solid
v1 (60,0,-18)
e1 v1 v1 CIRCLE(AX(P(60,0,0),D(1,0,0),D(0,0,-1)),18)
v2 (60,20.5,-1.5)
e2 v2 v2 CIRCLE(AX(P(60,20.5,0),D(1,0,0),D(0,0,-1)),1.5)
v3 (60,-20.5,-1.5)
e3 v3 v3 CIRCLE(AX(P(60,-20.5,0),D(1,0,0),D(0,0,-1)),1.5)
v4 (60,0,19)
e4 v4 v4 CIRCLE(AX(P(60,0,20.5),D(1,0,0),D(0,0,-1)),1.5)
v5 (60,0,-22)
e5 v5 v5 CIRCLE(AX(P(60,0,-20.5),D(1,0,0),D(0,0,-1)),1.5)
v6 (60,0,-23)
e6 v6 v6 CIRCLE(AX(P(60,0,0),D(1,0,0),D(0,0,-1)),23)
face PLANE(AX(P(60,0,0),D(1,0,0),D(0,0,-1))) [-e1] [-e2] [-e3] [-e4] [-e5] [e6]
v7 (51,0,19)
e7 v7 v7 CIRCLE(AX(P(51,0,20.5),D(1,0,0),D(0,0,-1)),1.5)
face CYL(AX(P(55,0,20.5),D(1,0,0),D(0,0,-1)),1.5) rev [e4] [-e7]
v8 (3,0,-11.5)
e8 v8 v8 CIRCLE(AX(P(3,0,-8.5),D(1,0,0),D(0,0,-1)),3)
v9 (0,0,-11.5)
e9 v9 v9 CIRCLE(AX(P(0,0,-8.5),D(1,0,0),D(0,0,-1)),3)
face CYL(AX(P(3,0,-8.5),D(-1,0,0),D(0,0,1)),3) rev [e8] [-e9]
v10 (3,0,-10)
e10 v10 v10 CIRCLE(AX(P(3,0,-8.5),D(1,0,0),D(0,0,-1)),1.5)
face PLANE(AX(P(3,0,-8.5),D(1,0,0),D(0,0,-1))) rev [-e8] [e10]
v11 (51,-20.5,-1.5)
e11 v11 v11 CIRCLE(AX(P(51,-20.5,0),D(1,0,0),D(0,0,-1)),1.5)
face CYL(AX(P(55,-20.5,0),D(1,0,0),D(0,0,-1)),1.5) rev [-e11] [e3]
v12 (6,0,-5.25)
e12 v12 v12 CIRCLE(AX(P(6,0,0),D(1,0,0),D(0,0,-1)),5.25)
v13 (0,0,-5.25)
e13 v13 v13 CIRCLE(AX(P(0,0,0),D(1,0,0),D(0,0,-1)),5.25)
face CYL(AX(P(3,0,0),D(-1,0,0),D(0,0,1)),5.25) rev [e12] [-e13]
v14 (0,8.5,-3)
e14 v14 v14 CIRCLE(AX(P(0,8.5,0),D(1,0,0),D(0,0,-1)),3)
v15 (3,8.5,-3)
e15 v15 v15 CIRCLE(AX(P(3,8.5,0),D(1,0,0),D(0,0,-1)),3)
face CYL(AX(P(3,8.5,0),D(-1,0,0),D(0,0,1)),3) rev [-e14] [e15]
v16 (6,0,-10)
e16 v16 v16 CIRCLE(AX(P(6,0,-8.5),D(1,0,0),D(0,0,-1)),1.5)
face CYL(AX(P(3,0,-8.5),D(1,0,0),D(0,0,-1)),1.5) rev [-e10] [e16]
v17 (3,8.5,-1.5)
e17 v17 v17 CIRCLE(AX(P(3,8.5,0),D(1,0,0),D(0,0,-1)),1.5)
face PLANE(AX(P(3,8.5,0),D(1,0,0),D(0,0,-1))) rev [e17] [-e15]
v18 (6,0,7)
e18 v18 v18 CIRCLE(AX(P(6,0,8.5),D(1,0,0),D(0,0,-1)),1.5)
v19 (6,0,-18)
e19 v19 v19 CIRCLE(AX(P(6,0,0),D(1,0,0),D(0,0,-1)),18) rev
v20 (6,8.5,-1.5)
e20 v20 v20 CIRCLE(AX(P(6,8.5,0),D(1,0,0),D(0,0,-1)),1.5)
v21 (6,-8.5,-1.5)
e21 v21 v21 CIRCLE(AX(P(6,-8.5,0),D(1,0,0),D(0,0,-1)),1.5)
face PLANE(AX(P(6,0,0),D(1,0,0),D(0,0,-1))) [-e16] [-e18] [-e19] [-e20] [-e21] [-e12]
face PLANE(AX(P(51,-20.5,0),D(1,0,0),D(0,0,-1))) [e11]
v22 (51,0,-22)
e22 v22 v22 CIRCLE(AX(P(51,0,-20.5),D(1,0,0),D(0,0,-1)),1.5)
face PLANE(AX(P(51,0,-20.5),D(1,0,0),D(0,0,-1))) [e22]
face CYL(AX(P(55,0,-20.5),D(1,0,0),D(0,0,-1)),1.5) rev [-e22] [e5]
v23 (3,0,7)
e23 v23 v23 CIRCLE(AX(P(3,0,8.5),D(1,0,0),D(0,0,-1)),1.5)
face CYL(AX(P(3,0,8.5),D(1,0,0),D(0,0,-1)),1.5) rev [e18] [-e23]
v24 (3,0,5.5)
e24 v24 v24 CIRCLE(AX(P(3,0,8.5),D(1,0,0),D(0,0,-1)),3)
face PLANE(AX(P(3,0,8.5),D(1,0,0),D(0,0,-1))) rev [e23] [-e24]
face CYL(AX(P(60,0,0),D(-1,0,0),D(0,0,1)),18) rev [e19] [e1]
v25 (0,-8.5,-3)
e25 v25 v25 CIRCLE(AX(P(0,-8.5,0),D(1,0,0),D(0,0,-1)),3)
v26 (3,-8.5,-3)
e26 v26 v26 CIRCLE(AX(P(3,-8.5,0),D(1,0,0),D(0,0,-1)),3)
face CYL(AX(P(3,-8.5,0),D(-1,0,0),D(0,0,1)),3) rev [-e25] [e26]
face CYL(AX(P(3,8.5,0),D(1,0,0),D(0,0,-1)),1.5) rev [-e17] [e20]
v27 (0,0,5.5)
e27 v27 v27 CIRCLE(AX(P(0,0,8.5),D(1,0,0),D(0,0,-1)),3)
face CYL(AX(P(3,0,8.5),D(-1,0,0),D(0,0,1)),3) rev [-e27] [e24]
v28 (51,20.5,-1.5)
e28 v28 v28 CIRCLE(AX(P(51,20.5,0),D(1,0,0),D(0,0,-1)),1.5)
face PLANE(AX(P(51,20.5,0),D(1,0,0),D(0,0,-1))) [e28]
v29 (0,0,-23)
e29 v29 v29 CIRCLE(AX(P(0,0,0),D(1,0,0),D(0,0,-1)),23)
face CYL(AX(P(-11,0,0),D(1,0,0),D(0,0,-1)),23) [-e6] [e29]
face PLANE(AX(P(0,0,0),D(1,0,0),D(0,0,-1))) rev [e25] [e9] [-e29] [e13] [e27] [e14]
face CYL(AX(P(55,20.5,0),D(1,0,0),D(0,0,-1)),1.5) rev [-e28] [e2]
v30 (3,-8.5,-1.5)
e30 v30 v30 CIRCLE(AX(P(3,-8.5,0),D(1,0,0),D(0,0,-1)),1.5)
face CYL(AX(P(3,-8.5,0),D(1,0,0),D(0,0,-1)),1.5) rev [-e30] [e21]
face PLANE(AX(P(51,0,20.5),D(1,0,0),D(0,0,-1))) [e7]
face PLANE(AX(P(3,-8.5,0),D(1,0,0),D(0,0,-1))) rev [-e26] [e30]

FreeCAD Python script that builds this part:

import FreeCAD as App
import Part
import Sketcher
Q = App.Units.Quantity

doc = App.newDocument("Part")
body = doc.addObject("PartDesign::Body", "Body")

# Sketch on YZ plane
sketch1 = body.newObject("Sketcher::SketchObject", "Sketch")
sketch1.AttachmentSupport = (doc.getObject("YZ_Plane"), [""])
sketch1.MapMode = "FlatFace"
sketch1.addGeometry(Part.Circle(App.Vector(0, 0, 0), App.Vector(0, 0, 1), 23), False)
sketch1.addGeometry(Part.Circle(App.Vector(0, 0, 0), App.Vector(0, 0, 1), 18), False)
sketch1.addConstraint(Sketcher.Constraint("Coincident", 0, 3, -1, 1))
sketch1.addConstraint(Sketcher.Constraint("Coincident", 1, 3, -1, 1))
sketch1.addConstraint(Sketcher.Constraint("Diameter", 0, Q("46 mm")))
sketch1.addConstraint(Sketcher.Constraint("Diameter", 1, Q("36 mm")))
pad1 = body.newObject("PartDesign::Pad", "Pad")
pad1.Profile = sketch1
pad1.Length = 11
pad1.Reversed = True

# Sketch on YZ plane
sketch2 = body.newObject("Sketcher::SketchObject", "Sketch001")
sketch2.AttachmentSupport = (doc.getObject("YZ_Plane"), [""])
sketch2.MapMode = "FlatFace"
sketch2.addGeometry(Part.Circle(App.Vector(0, 0, 0), App.Vector(0, 0, 1), 23), False)
sketch2.addGeometry(Part.Circle(App.Vector(-8.5, 0, 0), App.Vector(0, 0, 1), 3), False)
sketch2.addGeometry(Part.Circle(App.Vector(0, 8.5, 0), App.Vector(0, 0, 1), 3), False)
sketch2.addGeometry(Part.Circle(App.Vector(0, 0, 0), App.Vector(0, 0, 1), 5.2), False)
sketch2.addGeometry(Part.Circle(App.Vector(0, -8.5, 0), App.Vector(0, 0, 1), 3), False)
sketch2.addGeometry(Part.Circle(App.Vector(8.5, 0, 0), App.Vector(0, 0, 1), 3), False)
sketch2.addConstraint(Sketcher.Constraint("Coincident", 0, 3, -1, 1))
sketch2.addConstraint(Sketcher.Constraint("Coincident", 3, 3, -1, 1))
sketch2.addConstraint(Sketcher.Constraint("Equal", 1, 2))
sketch2.addConstraint(Sketcher.Constraint("Equal", 2, 4))
sketch2.addConstraint(Sketcher.Constraint("Equal", 4, 5))
sketch2.addConstraint(Sketcher.Constraint("Symmetric", 2, 3, 4, 3, -1, 1))
sketch2.addConstraint(Sketcher.Constraint("Symmetric", 1, 3, 5, 3, -1, 1))
sketch2.addConstraint(Sketcher.Constraint("PointOnObject", 1, 3, -1))
sketch2.addConstraint(Sketcher.Constraint("PointOnObject", 2, 3, -2))
sketch2.addConstraint(Sketcher.Constraint("Diameter", 0, Q("46 mm")))
sketch2.addConstraint(Sketcher.Constraint("Diameter", 1, Q("6 mm")))
sketch2.addConstraint(Sketcher.Constraint("Diameter", 3, Q("10.5 mm")))
sketch2.addConstraint(Sketcher.Constraint("DistanceY", 4, 3, 2, 3, Q("17 mm")))
sketch2.addConstraint(Sketcher.Constraint("DistanceX", 1, 3, 5, 3, Q("17 mm")))
pad2 = body.newObject("PartDesign::Pad", "Pad001")
pad2.Profile = sketch2
pad2.Length = 3

# Sketch on YZ plane
sketch3 = body.newObject("Sketcher::SketchObject", "Sketch002")
sketch3.AttachmentSupport = (doc.getObject("YZ_Plane"), [""])
sketch3.MapMode = "FlatFace"
sketch3.AttachmentOffset = App.Placement(App.Vector(0, 0, 3), App.Rotation())
sketch3.addGeometry(Part.Circle(App.Vector(0, 0, 0), App.Vector(0, 0, 1), 23), False)
sketch3.addGeometry(Part.Circle(App.Vector(-8.5, 0, 0), App.Vector(0, 0, 1), 1.5), False)
sketch3.addGeometry(Part.Circle(App.Vector(0, 8.5, 0), App.Vector(0, 0, 1), 1.5), False)
sketch3.addGeometry(Part.Circle(App.Vector(0, 0, 0), App.Vector(0, 0, 1), 5.2), False)
sketch3.addGeometry(Part.Circle(App.Vector(0, -8.5, 0), App.Vector(0, 0, 1), 1.5), False)
sketch3.addGeometry(Part.Circle(App.Vector(8.5, 0, 0), App.Vector(0, 0, 1), 1.5), False)
sketch3.addConstraint(Sketcher.Constraint("Coincident", 0, 3, -1, 1))
sketch3.addConstraint(Sketcher.Constraint("Coincident", 3, 3, -1, 1))
sketch3.addConstraint(Sketcher.Constraint("Equal", 1, 2))
sketch3.addConstraint(Sketcher.Constraint("Equal", 2, 4))
sketch3.addConstraint(Sketcher.Constraint("Equal", 4, 5))
sketch3.addConstraint(Sketcher.Constraint("Symmetric", 2, 3, 4, 3, -1, 1))
sketch3.addConstraint(Sketcher.Constraint("Symmetric", 1, 3, 5, 3, -1, 1))
sketch3.addConstraint(Sketcher.Constraint("PointOnObject", 1, 3, -1))
sketch3.addConstraint(Sketcher.Constraint("PointOnObject", 2, 3, -2))
sketch3.addConstraint(Sketcher.Constraint("Diameter", 0, Q("46 mm")))
sketch3.addConstraint(Sketcher.Constraint("Diameter", 1, Q("3 mm")))
sketch3.addConstraint(Sketcher.Constraint("Diameter", 3, Q("10.5 mm")))
sketch3.addConstraint(Sketcher.Constraint("DistanceY", 4, 3, 2, 3, Q("17 mm")))
sketch3.addConstraint(Sketcher.Constraint("DistanceX", 1, 3, 5, 3, Q("17 mm")))
pad3 = body.newObject("PartDesign::Pad", "Pad002")
pad3.Profile = sketch3
pad3.Length = 3

# Sketch on YZ plane
sketch4 = body.newObject("Sketcher::SketchObject", "Sketch003")
sketch4.AttachmentSupport = (doc.getObject("YZ_Plane"), [""])
sketch4.MapMode = "FlatFace"
sketch4.addGeometry(Part.Circle(App.Vector(0, 0, 0), App.Vector(0, 0, 1), 23), False)
sketch4.addGeometry(Part.Circle(App.Vector(0, 0, 0), App.Vector(0, 0, 1), 18), False)
sketch4.addConstraint(Sketcher.Constraint("Coincident", 0, 3, -1, 1))
sketch4.addConstraint(Sketcher.Constraint("Coincident", 1, 3, -1, 1))
sketch4.addConstraint(Sketcher.Constraint("Diameter", 0, Q("46 mm")))
sketch4.addConstraint(Sketcher.Constraint("Diameter", 1, Q("36 mm")))
pad4 = body.newObject("PartDesign::Pad", "Pad003")
pad4.Profile = sketch4
pad4.Length = 60

# Sketch on YZ plane
sketch5 = body.newObject("Sketcher::SketchObject", "Sketch004")
sketch5.AttachmentSupport = (doc.getObject("YZ_Plane"), [""])
sketch5.MapMode = "FlatFace"
sketch5.AttachmentOffset = App.Placement(App.Vector(0, 0, 60), App.Rotation())
sketch5.addGeometry(Part.Circle(App.Vector(20.5, 0, 0), App.Vector(0, 0, 1), 1.5), False)
sketch5.addGeometry(Part.Circle(App.Vector(0, -20.5, 0), App.Vector(0, 0, 1), 1.5), False)
sketch5.addGeometry(Part.Circle(App.Vector(-20.5, 0, 0), App.Vector(0, 0, 1), 1.5), False)
sketch5.addGeometry(Part.Circle(App.Vector(0, 20.5, 0), App.Vector(0, 0, 1), 1.5), False)
sketch5.addConstraint(Sketcher.Constraint("Equal", 0, 1))
sketch5.addConstraint(Sketcher.Constraint("Equal", 1, 2))
sketch5.addConstraint(Sketcher.Constraint("Equal", 2, 3))
sketch5.addConstraint(Sketcher.Constraint("Symmetric", 0, 3, 2, 3, -1, 1))
sketch5.addConstraint(Sketcher.Constraint("Symmetric", 1, 3, 3, 3, -1, 1))
sketch5.addConstraint(Sketcher.Constraint("PointOnObject", 0, 3, -1))
sketch5.addConstraint(Sketcher.Constraint("PointOnObject", 1, 3, -2))
sketch5.addConstraint(Sketcher.Constraint("Diameter", 0, Q("3 mm")))
sketch5.addConstraint(Sketcher.Constraint("DistanceX", 2, 3, 0, 3, Q("41 mm")))
sketch5.addConstraint(Sketcher.Constraint("DistanceY", 1, 3, 3, 3, Q("41 mm")))
pocket1 = body.newObject("PartDesign::Pocket", "Pocket")
pocket1.Profile = sketch5
pocket1.Length = 5

# Sketch on YZ plane
sketch6 = body.newObject("Sketcher::SketchObject", "Sketch005")
sketch6.AttachmentSupport = (doc.getObject("YZ_Plane"), [""])
sketch6.MapMode = "FlatFace"
sketch6.AttachmentOffset = App.Placement(App.Vector(0, 0, 6), App.Rotation())
sketch6.addGeometry(Part.Circle(App.Vector(8.5, 0, 0), App.Vector(0, 0, 1), 3), False)
sketch6.addGeometry(Part.Circle(App.Vector(8.5, 0, 0), App.Vector(0, 0, 1), 1.5), False)
sketch6.addGeometry(Part.Circle(App.Vector(0, 8.5, 0), App.Vector(0, 0, 1), 3), False)
sketch6.addGeometry(Part.Circle(App.Vector(0, 8.5, 0), App.Vector(0, 0, 1), 1.5), False)
sketch6.addGeometry(Part.Circle(App.Vector(-8.5, 0, 0), App.Vector(0, 0, 1), 3), False)
sketch6.addGeometry(Part.Circle(App.Vector(-8.5, 0, 0), App.Vector(0, 0, 1), 1.5), False)
sketch6.addGeometry(Part.Circle(App.Vector(0, -8.5, 0), App.Vector(0, 0, 1), 3), False)
sketch6.addGeometry(Part.Circle(App.Vector(0, -8.5, 0), App.Vector(0, 0, 1), 1.5), False)
sketch6.addConstraint(Sketcher.Constraint("Coincident", 1, 3, 0, 3))
sketch6.addConstraint(Sketcher.Constraint("Coincident", 3, 3, 2, 3))
sketch6.addConstraint(Sketcher.Constraint("Coincident", 5, 3, 4, 3))
sketch6.addConstraint(Sketcher.Constraint("Coincident", 7, 3, 6, 3))
sketch6.addConstraint(Sketcher.Constraint("Equal", 0, 2))
sketch6.addConstraint(Sketcher.Constraint("Equal", 1, 3))
sketch6.addConstraint(Sketcher.Constraint("Equal", 2, 4))
sketch6.addConstraint(Sketcher.Constraint("Equal", 3, 5))
sketch6.addConstraint(Sketcher.Constraint("Equal", 4, 6))
sketch6.addConstraint(Sketcher.Constraint("Equal", 5, 7))
sketch6.addConstraint(Sketcher.Constraint("Symmetric", 0, 3, 4, 3, -1, 1))
sketch6.addConstraint(Sketcher.Constraint("Symmetric", 2, 3, 6, 3, -1, 1))
sketch6.addConstraint(Sketcher.Constraint("PointOnObject", 0, 3, -1))
sketch6.addConstraint(Sketcher.Constraint("PointOnObject", 2, 3, -2))
sketch6.addConstraint(Sketcher.Constraint("Diameter", 0, Q("6 mm")))
sketch6.addConstraint(Sketcher.Constraint("Diameter", 1, Q("3 mm")))
sketch6.addConstraint(Sketcher.Constraint("DistanceX", 4, 3, 0, 3, Q("17 mm")))
sketch6.addConstraint(Sketcher.Constraint("DistanceY", 6, 3, 2, 3, Q("17 mm")))
pad5 = body.newObject("PartDesign::Pad", "Pad004")
pad5.Profile = sketch6
pad5.Length = 3
pad5.Reversed = True

# Sketch on YZ plane
sketch7 = body.newObject("Sketcher::SketchObject", "Sketch006")
sketch7.AttachmentSupport = (doc.getObject("YZ_Plane"), [""])
sketch7.MapMode = "FlatFace"
sketch7.addGeometry(Part.Circle(App.Vector(0, 0, 0), App.Vector(0, 0, 1), 23), False)
sketch7.addGeometry(Part.Circle(App.Vector(0, 0, 0), App.Vector(0, 0, 1), 18), False)
sketch7.addConstraint(Sketcher.Constraint("Coincident", 0, 3, -1, 1))
sketch7.addConstraint(Sketcher.Constraint("Coincident", 1, 3, -1, 1))
sketch7.addConstraint(Sketcher.Constraint("Diameter", 0, Q("46 mm")))
sketch7.addConstraint(Sketcher.Constraint("Diameter", 1, Q("36 mm")))
pocket2 = body.newObject("PartDesign::Pocket", "Pocket001")
pocket2.Profile = sketch7
pocket2.Length = 23

# Sketch on YZ plane
sketch8 = body.newObject("Sketcher::SketchObject", "Sketch007")
sketch8.AttachmentSupport = (doc.getObject("YZ_Plane"), [""])
sketch8.MapMode = "FlatFace"
sketch8.AttachmentOffset = App.Placement(App.Vector(0, 0, 60), App.Rotation())
sketch8.addGeometry(Part.Circle(App.Vector(20.5, 0, 0), App.Vector(0, 0, 1), 1.5), False)
sketch8.addGeometry(Part.Circle(App.Vector(0, -20.5, 0), App.Vector(0, 0, 1), 1.5), False)
sketch8.addGeometry(Part.Circle(App.Vector(-20.5, 0, 0), App.Vector(0, 0, 1), 1.5), False)
sketch8.addGeometry(Part.Circle(App.Vector(0, 20.5, 0), App.Vector(0, 0, 1), 1.5), False)
sketch8.addConstraint(Sketcher.Constraint("Equal", 0, 1))
sketch8.addConstraint(Sketcher.Constraint("Equal", 1, 2))
sketch8.addConstraint(Sketcher.Constraint("Equal", 2, 3))
sketch8.addConstraint(Sketcher.Constraint("Symmetric", 0, 3, 2, 3, -1, 1))
sketch8.addConstraint(Sketcher.Constraint("Symmetric", 1, 3, 3, 3, -1, 1))
sketch8.addConstraint(Sketcher.Constraint("PointOnObject", 0, 3, -1))
sketch8.addConstraint(Sketcher.Constraint("PointOnObject", 1, 3, -2))
sketch8.addConstraint(Sketcher.Constraint("Diameter", 0, Q("3 mm")))
sketch8.addConstraint(Sketcher.Constraint("DistanceX", 2, 3, 0, 3, Q("41 mm")))
sketch8.addConstraint(Sketcher.Constraint("DistanceY", 1, 3, 3, 3, Q("41 mm")))
pocket3 = body.newObject("PartDesign::Pocket", "Pocket002")
pocket3.Profile = sketch8
pocket3.Length = 9

doc.recompute()
